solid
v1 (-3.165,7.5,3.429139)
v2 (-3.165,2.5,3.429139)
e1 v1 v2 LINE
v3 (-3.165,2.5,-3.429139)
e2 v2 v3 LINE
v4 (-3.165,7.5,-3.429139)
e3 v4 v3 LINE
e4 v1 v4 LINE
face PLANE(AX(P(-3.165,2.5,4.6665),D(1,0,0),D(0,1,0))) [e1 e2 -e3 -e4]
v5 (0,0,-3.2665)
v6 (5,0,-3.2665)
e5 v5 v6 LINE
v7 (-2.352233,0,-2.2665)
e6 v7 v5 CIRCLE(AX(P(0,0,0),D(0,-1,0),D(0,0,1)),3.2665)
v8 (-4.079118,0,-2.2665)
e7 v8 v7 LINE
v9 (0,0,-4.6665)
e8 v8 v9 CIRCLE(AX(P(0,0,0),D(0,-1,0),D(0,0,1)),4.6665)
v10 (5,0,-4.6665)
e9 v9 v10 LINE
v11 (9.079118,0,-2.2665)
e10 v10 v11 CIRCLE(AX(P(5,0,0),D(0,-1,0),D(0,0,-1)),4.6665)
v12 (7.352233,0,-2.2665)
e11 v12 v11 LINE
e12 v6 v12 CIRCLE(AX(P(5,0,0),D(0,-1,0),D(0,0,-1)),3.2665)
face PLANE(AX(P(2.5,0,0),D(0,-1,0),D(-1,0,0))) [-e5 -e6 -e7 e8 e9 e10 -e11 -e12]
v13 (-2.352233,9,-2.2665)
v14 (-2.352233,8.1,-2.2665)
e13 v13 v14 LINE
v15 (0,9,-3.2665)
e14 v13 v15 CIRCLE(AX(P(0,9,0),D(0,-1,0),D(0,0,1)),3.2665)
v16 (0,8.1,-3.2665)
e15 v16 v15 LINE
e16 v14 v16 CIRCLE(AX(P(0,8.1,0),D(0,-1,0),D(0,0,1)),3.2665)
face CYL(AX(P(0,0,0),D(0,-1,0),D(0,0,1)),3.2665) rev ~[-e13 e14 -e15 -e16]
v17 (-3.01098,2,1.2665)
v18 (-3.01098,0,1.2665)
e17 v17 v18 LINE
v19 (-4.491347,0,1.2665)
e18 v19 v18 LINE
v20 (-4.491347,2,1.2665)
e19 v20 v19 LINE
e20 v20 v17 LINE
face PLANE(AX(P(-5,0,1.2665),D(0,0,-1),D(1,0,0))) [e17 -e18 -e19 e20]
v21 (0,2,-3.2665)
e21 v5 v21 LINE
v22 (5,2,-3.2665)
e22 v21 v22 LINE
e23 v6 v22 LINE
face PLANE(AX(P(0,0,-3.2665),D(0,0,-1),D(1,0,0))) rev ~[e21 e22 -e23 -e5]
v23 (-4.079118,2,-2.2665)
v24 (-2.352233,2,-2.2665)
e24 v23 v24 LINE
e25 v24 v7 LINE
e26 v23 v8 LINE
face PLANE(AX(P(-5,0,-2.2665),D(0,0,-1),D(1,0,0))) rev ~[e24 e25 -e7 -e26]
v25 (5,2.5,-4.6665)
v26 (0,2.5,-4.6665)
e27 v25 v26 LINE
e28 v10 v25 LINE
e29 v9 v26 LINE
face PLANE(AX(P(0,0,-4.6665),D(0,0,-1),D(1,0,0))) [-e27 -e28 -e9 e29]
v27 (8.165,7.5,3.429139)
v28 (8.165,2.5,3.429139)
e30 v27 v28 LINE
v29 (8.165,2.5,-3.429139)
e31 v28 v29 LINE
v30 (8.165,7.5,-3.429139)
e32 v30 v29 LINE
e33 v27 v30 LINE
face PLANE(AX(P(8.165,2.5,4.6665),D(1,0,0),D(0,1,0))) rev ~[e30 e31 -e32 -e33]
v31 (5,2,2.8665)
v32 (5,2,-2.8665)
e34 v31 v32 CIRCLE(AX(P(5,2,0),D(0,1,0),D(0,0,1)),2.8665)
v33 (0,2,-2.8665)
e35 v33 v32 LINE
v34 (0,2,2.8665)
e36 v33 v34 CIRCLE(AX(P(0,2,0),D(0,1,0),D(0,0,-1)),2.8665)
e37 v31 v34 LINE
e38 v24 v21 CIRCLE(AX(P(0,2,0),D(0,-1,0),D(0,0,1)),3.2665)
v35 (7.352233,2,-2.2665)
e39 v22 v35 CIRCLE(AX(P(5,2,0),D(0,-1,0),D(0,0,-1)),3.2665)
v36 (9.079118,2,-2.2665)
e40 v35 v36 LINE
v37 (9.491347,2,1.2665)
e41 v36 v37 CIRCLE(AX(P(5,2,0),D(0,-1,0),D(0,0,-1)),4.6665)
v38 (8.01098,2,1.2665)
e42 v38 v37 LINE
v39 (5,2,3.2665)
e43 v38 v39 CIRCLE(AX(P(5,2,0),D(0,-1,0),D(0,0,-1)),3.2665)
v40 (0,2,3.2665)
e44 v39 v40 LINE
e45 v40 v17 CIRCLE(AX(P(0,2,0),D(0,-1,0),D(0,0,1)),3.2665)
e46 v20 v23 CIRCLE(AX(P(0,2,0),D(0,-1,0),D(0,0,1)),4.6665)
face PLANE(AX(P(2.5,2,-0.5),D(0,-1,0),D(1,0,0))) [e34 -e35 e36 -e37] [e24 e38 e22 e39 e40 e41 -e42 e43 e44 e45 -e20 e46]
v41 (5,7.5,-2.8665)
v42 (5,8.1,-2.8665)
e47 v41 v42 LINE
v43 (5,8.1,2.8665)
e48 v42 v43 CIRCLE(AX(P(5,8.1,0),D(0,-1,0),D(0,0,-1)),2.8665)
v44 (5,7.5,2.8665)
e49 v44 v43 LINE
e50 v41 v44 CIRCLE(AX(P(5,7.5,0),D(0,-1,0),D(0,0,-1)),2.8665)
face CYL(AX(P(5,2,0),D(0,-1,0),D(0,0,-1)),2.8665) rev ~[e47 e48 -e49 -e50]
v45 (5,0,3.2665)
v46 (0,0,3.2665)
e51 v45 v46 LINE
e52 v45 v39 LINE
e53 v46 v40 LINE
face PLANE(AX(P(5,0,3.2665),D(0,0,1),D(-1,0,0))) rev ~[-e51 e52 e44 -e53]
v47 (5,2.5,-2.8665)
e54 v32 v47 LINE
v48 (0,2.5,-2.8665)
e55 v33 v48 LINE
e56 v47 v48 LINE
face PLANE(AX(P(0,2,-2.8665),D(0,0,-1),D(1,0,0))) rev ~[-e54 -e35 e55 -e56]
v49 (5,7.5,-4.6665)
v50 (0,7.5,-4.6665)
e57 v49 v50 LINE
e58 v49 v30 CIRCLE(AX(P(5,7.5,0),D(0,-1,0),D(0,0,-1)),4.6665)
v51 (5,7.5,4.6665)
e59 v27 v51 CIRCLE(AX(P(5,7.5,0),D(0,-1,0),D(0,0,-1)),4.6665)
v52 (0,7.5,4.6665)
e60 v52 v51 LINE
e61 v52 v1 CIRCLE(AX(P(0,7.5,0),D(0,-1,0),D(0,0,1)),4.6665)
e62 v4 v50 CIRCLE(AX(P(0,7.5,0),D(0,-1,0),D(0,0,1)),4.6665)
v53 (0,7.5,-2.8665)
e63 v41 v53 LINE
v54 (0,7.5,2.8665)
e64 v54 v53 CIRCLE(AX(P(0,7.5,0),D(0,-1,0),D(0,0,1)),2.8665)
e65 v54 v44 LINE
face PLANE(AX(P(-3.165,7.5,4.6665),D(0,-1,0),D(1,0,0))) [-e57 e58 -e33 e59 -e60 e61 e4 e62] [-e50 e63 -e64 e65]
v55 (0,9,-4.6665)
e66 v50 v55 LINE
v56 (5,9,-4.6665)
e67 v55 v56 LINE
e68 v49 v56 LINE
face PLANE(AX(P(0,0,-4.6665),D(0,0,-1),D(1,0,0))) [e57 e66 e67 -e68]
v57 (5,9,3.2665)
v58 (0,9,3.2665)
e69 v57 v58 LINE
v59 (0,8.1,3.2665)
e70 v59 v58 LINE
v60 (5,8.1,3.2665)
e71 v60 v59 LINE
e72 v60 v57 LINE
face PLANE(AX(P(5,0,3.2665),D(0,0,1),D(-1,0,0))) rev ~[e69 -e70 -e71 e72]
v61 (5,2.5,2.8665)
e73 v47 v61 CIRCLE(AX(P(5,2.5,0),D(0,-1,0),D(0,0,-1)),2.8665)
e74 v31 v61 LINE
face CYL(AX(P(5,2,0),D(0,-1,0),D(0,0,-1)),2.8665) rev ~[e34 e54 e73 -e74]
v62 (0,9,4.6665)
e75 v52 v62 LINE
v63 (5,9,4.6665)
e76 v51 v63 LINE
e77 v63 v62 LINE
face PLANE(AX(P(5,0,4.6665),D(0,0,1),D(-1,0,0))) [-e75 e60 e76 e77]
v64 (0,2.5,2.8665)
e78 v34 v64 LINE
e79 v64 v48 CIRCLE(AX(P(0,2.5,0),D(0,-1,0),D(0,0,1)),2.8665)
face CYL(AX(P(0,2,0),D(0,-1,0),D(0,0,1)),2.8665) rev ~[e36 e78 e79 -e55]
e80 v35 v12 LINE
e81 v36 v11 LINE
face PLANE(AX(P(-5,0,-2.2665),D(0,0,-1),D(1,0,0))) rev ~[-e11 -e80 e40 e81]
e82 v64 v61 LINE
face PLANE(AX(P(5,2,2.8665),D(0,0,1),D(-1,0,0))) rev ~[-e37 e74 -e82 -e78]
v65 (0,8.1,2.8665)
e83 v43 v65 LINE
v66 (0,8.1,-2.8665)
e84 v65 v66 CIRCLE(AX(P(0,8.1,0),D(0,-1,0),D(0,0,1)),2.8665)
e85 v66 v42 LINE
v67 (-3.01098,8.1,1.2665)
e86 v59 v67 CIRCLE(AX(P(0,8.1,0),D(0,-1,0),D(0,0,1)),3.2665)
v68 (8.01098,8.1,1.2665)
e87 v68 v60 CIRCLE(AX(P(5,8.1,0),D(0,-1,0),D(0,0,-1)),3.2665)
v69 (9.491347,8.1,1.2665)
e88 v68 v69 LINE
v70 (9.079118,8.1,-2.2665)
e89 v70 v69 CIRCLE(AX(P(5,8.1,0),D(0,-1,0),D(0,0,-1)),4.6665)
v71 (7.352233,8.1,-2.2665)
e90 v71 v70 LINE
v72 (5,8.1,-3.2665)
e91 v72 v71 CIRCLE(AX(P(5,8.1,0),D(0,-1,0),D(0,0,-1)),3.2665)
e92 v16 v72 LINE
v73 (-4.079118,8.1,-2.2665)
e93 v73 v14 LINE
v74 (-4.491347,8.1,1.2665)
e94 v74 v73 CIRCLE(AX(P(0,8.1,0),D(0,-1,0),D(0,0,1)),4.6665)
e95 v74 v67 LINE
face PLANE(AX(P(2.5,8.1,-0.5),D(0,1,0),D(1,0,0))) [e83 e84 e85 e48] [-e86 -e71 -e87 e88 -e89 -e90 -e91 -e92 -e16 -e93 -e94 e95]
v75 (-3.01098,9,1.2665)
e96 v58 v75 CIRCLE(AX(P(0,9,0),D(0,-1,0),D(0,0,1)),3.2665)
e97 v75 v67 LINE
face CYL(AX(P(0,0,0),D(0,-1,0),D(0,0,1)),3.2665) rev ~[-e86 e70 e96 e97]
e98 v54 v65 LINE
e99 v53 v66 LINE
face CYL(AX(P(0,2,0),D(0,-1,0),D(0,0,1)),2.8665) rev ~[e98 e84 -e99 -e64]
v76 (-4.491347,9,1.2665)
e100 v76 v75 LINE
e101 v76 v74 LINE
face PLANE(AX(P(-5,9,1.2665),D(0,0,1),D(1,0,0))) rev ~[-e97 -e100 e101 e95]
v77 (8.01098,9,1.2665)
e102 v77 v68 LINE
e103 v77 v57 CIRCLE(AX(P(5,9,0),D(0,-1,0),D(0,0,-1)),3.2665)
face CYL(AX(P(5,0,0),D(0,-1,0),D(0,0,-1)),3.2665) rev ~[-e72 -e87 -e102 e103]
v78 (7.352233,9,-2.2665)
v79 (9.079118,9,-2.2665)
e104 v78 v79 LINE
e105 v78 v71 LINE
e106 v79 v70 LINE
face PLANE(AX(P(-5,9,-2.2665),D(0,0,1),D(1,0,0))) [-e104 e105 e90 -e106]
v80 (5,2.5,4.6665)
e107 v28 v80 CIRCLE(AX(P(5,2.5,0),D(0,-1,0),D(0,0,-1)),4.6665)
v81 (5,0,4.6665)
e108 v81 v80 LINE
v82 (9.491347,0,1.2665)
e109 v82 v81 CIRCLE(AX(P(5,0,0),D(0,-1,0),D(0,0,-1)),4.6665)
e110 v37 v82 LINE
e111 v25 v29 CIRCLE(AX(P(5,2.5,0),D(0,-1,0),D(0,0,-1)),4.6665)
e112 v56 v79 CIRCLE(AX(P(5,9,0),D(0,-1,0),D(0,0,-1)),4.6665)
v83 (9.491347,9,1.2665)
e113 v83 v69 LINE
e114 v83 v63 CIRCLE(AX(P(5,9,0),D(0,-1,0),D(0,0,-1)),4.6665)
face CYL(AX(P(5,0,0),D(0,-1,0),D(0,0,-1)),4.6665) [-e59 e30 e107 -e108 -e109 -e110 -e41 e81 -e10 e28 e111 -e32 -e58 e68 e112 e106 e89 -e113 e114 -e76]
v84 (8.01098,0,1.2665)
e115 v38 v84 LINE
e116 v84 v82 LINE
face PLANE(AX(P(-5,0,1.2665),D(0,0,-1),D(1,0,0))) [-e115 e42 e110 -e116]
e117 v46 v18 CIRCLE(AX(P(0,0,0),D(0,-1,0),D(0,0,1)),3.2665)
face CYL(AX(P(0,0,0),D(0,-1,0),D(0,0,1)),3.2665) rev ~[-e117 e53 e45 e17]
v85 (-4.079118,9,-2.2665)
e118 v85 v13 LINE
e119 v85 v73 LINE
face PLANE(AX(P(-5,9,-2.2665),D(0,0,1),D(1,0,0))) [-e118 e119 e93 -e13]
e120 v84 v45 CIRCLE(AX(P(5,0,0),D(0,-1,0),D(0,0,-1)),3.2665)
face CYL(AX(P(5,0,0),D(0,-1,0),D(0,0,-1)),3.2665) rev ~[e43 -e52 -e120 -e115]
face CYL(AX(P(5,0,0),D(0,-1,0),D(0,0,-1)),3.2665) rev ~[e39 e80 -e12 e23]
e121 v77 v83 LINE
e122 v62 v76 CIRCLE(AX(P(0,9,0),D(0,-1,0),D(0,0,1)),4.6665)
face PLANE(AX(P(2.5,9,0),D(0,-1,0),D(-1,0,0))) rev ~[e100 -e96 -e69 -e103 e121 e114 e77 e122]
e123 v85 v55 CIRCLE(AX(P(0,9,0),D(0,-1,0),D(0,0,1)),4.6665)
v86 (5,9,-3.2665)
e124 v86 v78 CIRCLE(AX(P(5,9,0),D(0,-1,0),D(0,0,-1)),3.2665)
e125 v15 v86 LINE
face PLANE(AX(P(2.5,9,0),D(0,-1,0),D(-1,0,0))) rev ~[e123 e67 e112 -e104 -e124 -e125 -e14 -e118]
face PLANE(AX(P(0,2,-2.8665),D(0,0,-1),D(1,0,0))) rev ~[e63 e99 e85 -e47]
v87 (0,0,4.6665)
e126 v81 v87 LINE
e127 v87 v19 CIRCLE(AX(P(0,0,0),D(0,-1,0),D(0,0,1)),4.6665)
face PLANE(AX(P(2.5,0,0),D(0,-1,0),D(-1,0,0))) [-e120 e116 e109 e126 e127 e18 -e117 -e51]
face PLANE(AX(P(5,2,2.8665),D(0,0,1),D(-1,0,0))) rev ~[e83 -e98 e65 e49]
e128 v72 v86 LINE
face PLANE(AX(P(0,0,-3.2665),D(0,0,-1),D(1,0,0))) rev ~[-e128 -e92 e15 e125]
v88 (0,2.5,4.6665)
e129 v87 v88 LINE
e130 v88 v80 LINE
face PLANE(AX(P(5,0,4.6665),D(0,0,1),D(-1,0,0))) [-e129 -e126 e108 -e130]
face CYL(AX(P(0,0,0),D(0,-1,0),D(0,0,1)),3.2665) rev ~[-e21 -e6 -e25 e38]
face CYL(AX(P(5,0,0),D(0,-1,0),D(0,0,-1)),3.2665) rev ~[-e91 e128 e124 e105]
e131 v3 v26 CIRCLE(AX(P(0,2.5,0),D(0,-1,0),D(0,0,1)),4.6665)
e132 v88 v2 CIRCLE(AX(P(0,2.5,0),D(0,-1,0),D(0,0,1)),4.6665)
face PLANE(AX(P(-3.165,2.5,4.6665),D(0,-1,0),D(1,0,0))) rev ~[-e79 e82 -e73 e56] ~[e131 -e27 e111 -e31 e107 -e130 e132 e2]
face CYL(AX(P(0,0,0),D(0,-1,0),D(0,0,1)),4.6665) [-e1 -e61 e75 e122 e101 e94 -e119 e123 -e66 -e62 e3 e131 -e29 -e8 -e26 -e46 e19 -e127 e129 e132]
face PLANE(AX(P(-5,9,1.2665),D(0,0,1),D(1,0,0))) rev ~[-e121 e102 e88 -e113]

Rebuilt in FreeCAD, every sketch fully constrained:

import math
import FreeCAD as App
import Part
import Sketcher
from FreeCAD import Vector


def add_polygon(sketch, points):
    """Adds a closed chain of lines whose ends are joined by coincident constraints."""
    first, n = sketch.GeometryCount, len(points)
    for a, b in zip(points, points[1:] + points[:1]):
        sketch.addGeometry(Part.LineSegment(App.Vector(*a, 0), App.Vector(*b, 0)), False)
    for i in range(n):
        sketch.addConstraint(Sketcher.Constraint("Coincident", first + i, 2, first + (i + 1) % n, 1))

doc = App.newDocument("Part")
body = doc.addObject("PartDesign::Body", "Body")

# Sketch on XZ plane
sketch1 = body.newObject("Sketcher::SketchObject", "Sketch")
sketch1.AttachmentSupport = (doc.getObject("XZ_Plane"), [""])
sketch1.MapMode = "FlatFace"
sketch1.addGeometry(Part.LineSegment(Vector(5, -4.7, 0), Vector(0, -4.7, 0)), False)
sketch1.addGeometry(Part.ArcOfCircle(Part.Circle(Vector(0, 0, 0), Vector(0, 0, 1), 4.7), math.radians(90), math.radians(270)), False)
sketch1.addGeometry(Part.LineSegment(Vector(0, 4.7, 0), Vector(5, 4.7, 0)), False)
sketch1.addGeometry(Part.ArcOfCircle(Part.Circle(Vector(5, 0, 0), Vector(0, 0, 1), 4.7), math.radians(-90), math.radians(90)), False)
sketch1.addGeometry(Part.LineSegment(Vector(0, -3.3, 0), Vector(5, -3.3, 0)), False)
sketch1.addGeometry(Part.ArcOfCircle(Part.Circle(Vector(5, 0, 0), Vector(0, 0, 1), 3.3), math.radians(-90), math.radians(90)), False)
sketch1.addGeometry(Part.LineSegment(Vector(5, 3.3, 0), Vector(0, 3.3, 0)), False)
sketch1.addGeometry(Part.ArcOfCircle(Part.Circle(Vector(0, 0, 0), Vector(0, 0, 1), 3.3), math.radians(90), math.radians(270)), False)
sketch1.addConstraint(Sketcher.Constraint("Tangent", 0, 2, 1, 2))
sketch1.addConstraint(Sketcher.Constraint("Tangent", 1, 1, 2, 1))
sketch1.addConstraint(Sketcher.Constraint("Tangent", 2, 2, 3, 2))
sketch1.addConstraint(Sketcher.Constraint("Tangent", 3, 1, 0, 1))
sketch1.addConstraint(Sketcher.Constraint("Tangent", 4, 2, 5, 1))
sketch1.addConstraint(Sketcher.Constraint("Tangent", 5, 2, 6, 1))
sketch1.addConstraint(Sketcher.Constraint("Tangent", 6, 2, 7, 1))
sketch1.addConstraint(Sketcher.Constraint("Tangent", 7, 2, 4, 1))
sketch1.addConstraint(Sketcher.Constraint("Horizontal", 0))
sketch1.addConstraint(Sketcher.Constraint("Horizontal", 2))
sketch1.addConstraint(Sketcher.Constraint("Horizontal", 4))
sketch1.addConstraint(Sketcher.Constraint("Horizontal", 6))
sketch1.addConstraint(Sketcher.Constraint("Coincident", 1, 3, -1, 1))
sketch1.addConstraint(Sketcher.Constraint("Coincident", 7, 3, -1, 1))
sketch1.addConstraint(Sketcher.Constraint("Vertical", 5, 3, 2, 2))
sketch1.addConstraint(Sketcher.Constraint("DistanceX", 0, 2, 0, 1, 5.0))
sketch1.addConstraint(Sketcher.Constraint("Radius", 1, 4.6665))
sketch1.addConstraint(Sketcher.Constraint("Radius", 5, 3.2665))
pad1 = body.newObject("PartDesign::Pad", "Pad")
pad1.Profile = sketch1
pad1.Length = 9
pad1.Reversed = True

# Sketch on XZ plane
sketch2 = body.newObject("Sketcher::SketchObject", "Sketch001")
sketch2.AttachmentSupport = (doc.getObject("XZ_Plane"), [""])
sketch2.MapMode = "FlatFace"
sketch2.AttachmentOffset = App.Placement(Vector(0, 0, -2), App.Rotation())
sketch2.addGeometry(Part.LineSegment(Vector(5, -3.3, 0), Vector(0, -3.3, 0)), False)
sketch2.addGeometry(Part.ArcOfCircle(Part.Circle(Vector(0, 0, 0), Vector(0, 0, 1), 3.3), math.radians(90), math.radians(270)), False)
sketch2.addGeometry(Part.LineSegment(Vector(0, 3.3, 0), Vector(5, 3.3, 0)), False)
sketch2.addGeometry(Part.ArcOfCircle(Part.Circle(Vector(5, 0, 0), Vector(0, 0, 1), 3.3), math.radians(-90), math.radians(90)), False)
sketch2.addGeometry(Part.LineSegment(Vector(0, -2.9, 0), Vector(5, -2.9, 0)), False)
sketch2.addGeometry(Part.ArcOfCircle(Part.Circle(Vector(5, 0, 0), Vector(0, 0, 1), 2.9), math.radians(-90), math.radians(90)), False)
sketch2.addGeometry(Part.LineSegment(Vector(5, 2.9, 0), Vector(0, 2.9, 0)), False)
sketch2.addGeometry(Part.ArcOfCircle(Part.Circle(Vector(0, 0, 0), Vector(0, 0, 1), 2.9), math.radians(90), math.radians(270)), False)
sketch2.addConstraint(Sketcher.Constraint("Tangent", 0, 2, 1, 2))
sketch2.addConstraint(Sketcher.Constraint("Tangent", 1, 1, 2, 1))
sketch2.addConstraint(Sketcher.Constraint("Tangent", 2, 2, 3, 2))
sketch2.addConstraint(Sketcher.Constraint("Tangent", 3, 1, 0, 1))
sketch2.addConstraint(Sketcher.Constraint("Tangent", 4, 2, 5, 1))
sketch2.addConstraint(Sketcher.Constraint("Tangent", 5, 2, 6, 1))
sketch2.addConstraint(Sketcher.Constraint("Tangent", 6, 2, 7, 1))
sketch2.addConstraint(Sketcher.Constraint("Tangent", 7, 2, 4, 1))
sketch2.addConstraint(Sketcher.Constraint("Horizontal", 0))
sketch2.addConstraint(Sketcher.Constraint("Horizontal", 2))
sketch2.addConstraint(Sketcher.Constraint("Horizontal", 4))
sketch2.addConstraint(Sketcher.Constraint("Horizontal", 6))
sketch2.addConstraint(Sketcher.Constraint("Coincident", 1, 3, -1, 1))
sketch2.addConstraint(Sketcher.Constraint("Coincident", 7, 3, -1, 1))
sketch2.addConstraint(Sketcher.Constraint("Vertical", 5, 3, 2, 2))
sketch2.addConstraint(Sketcher.Constraint("DistanceX", 0, 2, 0, 1, 5.0))
sketch2.addConstraint(Sketcher.Constraint("Radius", 1, 3.2665))
sketch2.addConstraint(Sketcher.Constraint("Radius", 5, 2.8665))
pad2 = body.newObject("PartDesign::Pad", "Pad001")
pad2.Profile = sketch2
pad2.Length = 6.1
pad2.Reversed = True

# Sketch on XY plane
sketch3 = body.newObject("Sketcher::SketchObject", "Sketch002")
sketch3.AttachmentSupport = (doc.getObject("XY_Plane"), [""])
sketch3.MapMode = "FlatFace"
sketch3.AttachmentOffset = App.Placement(Vector(0, 0, 4.6665), App.Rotation())
add_polygon(sketch3, [(-3, 8), (-3, 2), (8, 2), (8, 8)])  # lines 0-3
sketch3.addConstraint(Sketcher.Constraint("Vertical", 0))
sketch3.addConstraint(Sketcher.Constraint("Horizontal", 1))
sketch3.addConstraint(Sketcher.Constraint("Vertical", 2))
sketch3.addConstraint(Sketcher.Constraint("Horizontal", 3))
sketch3.addConstraint(Sketcher.Constraint("DistanceY", 0, 2, 0, 1, 5.0))
sketch3.addConstraint(Sketcher.Constraint("DistanceX", 1, 1, 1, 2, 11.33))
sketch3.addConstraint(Sketcher.Constraint("DistanceY", -1, 1, 0, 2, 2.5))
sketch3.addConstraint(Sketcher.Constraint("DistanceX", 0, 2, -1, 1, 3.165))
pocket1 = body.newObject("PartDesign::Pocket", "Pocket")
pocket1.Profile = sketch3
pocket1.Length = 10

# Sketch on XZ plane
sketch4 = body.newObject("Sketcher::SketchObject", "Sketch003")
sketch4.AttachmentSupport = (doc.getObject("XZ_Plane"), [""])
sketch4.MapMode = "FlatFace"
sketch4.AttachmentOffset = App.Placement(Vector(0, 0, -9), App.Rotation())
add_polygon(sketch4, [(-5, -2.3), (-5, 1.3), (10, 1.3), (10, -2.3)])  # lines 0-3
sketch4.addConstraint(Sketcher.Constraint("Vertical", 0))
sketch4.addConstraint(Sketcher.Constraint("Horizontal", 1))
sketch4.addConstraint(Sketcher.Constraint("Vertical", 2))
sketch4.addConstraint(Sketcher.Constraint("Horizontal", 3))
sketch4.addConstraint(Sketcher.Constraint("DistanceX", 1, 1, 1, 2, 15.0))
sketch4.addConstraint(Sketcher.Constraint("DistanceX", 0, 2, -1, 1, 5.0))
sketch4.addConstraint(Sketcher.Constraint("DistanceY", 0, 1, 0, 2, 3.533))
sketch4.addConstraint(Sketcher.Constraint("DistanceY", -1, 1, 0, 2, 1.2665))
pocket2 = body.newObject("PartDesign::Pocket", "Pocket001")
pocket2.Profile = sketch4
pocket2.Length = 0.9
pocket2.Reversed = True

# Sketch on XZ plane
sketch5 = body.newObject("Sketcher::SketchObject", "Sketch004")
sketch5.AttachmentSupport = (doc.getObject("XZ_Plane"), [""])
sketch5.MapMode = "FlatFace"
add_polygon(sketch5, [(-5, 1.3), (-5, -2.3), (10, -2.3), (10, 1.3)])  # lines 0-3
sketch5.addConstraint(Sketcher.Constraint("Vertical", 0))
sketch5.addConstraint(Sketcher.Constraint("Horizontal", 1))
sketch5.addConstraint(Sketcher.Constraint("Vertical", 2))
sketch5.addConstraint(Sketcher.Constraint("Horizontal", 3))
sketch5.addConstraint(Sketcher.Constraint("DistanceX", 1, 1, 1, 2, 15.0))
sketch5.addConstraint(Sketcher.Constraint("DistanceX", 0, 2, -1, 1, 5.0))
sketch5.addConstraint(Sketcher.Constraint("DistanceY", 0, 2, 0, 1, 3.533))
sketch5.addConstraint(Sketcher.Constraint("DistanceY", 0, 2, -1, 1, 2.2665))
pocket3 = body.newObject("PartDesign::Pocket", "Pocket002")
pocket3.Profile = sketch5
pocket3.Length = 2

doc.recompute()
